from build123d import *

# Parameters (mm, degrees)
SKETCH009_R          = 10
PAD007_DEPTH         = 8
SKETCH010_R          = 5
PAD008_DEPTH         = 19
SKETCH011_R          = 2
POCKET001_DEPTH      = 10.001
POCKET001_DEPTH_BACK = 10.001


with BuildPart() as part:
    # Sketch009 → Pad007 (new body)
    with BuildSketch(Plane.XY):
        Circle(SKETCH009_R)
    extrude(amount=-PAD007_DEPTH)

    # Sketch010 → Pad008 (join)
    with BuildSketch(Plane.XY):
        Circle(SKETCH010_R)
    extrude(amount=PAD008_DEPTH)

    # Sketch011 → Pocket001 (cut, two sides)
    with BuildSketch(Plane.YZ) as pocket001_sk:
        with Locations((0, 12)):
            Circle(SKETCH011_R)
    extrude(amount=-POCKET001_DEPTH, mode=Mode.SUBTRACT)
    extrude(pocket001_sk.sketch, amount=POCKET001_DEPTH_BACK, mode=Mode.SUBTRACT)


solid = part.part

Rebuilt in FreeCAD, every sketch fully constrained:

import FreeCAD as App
import Part
import Sketcher

V = App.Vector
Q = App.Units.Quantity

doc = App.newDocument("Part")
body = doc.addObject("PartDesign::Body", "Body")

sketch1 = doc.addObject("Sketcher::SketchObject", "Sketch")
body.addObject(sketch1)
sketch1.AttachmentSupport = (doc.XY_Plane, [""])
sketch1.MapMode = "FlatFace"
sketch1.addGeometry(Part.Circle(V(0, 0, 0), V(0, 0, 1), 10), False)
sketch1.addConstraint([
    Sketcher.Constraint("Coincident", 0, 3, -1, 1),
    Sketcher.Constraint("Diameter", 0, Q("20 mm")),
])
pad1 = doc.addObject("PartDesign::Pad", "Pad")
body.addObject(pad1)
pad1.Profile = sketch1
pad1.Length = 8
pad1.Reversed = True

sketch2 = doc.addObject("Sketcher::SketchObject", "Sketch001")
body.addObject(sketch2)
sketch2.AttachmentSupport = (doc.XY_Plane, [""])
sketch2.MapMode = "FlatFace"
sketch2.addGeometry(Part.Circle(V(0, 0, 0), V(0, 0, 1), 5), False)
sketch2.addConstraint([
    Sketcher.Constraint("Coincident", 0, 3, -1, 1),
    Sketcher.Constraint("Diameter", 0, Q("10 mm")),
])
pad2 = doc.addObject("PartDesign::Pad", "Pad001")
body.addObject(pad2)
pad2.Profile = sketch2
pad2.Length = 19

sketch3 = doc.addObject("Sketcher::SketchObject", "Sketch002")
body.addObject(sketch3)
sketch3.AttachmentSupport = (doc.YZ_Plane, [""])
sketch3.MapMode = "FlatFace"
sketch3.addGeometry(Part.Circle(V(0, 12, 0), V(0, 0, 1), 2), False)
sketch3.addConstraint([
    Sketcher.Constraint("PointOnObject", 0, 3, -2),
    Sketcher.Constraint("Diameter", 0, Q("4 mm")),
    Sketcher.Constraint("DistanceY", -1, 1, 0, 3, Q("12 mm")),
])
pocket1 = doc.addObject("PartDesign::Pocket", "Pocket")
body.addObject(pocket1)
pocket1.Profile = sketch3
pocket1.Type = "ThroughAll"
pocket1.Midplane = True

doc.recompute()
